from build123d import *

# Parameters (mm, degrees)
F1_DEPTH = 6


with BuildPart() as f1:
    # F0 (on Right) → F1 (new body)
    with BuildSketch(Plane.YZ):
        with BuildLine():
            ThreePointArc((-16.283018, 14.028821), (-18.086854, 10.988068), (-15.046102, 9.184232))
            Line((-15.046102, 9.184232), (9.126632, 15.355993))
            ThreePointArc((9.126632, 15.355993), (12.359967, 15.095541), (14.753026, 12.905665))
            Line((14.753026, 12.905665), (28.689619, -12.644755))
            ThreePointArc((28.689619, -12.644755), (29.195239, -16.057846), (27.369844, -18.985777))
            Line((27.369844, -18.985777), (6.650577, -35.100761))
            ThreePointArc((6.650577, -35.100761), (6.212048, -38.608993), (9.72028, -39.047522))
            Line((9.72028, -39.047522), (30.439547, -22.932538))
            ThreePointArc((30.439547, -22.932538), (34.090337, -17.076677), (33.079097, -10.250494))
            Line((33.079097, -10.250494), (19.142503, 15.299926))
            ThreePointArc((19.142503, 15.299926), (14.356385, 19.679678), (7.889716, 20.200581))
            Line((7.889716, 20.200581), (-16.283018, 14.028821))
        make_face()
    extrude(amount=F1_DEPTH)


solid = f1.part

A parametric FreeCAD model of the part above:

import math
import FreeCAD as App
import Part
import Sketcher
from FreeCAD import Vector

doc = App.newDocument("Part")
params = doc.addObject("Spreadsheet::Sheet", "Params")
for row, (alias, value) in enumerate([
    ("sketch1_radius", "5.000001 mm"),
    ("sketch1_radius2", "5.000001 mm"),
    ("sketch1_radius3", "10.000001 mm"),
    ("sketch1_radius4", "10 mm"),
    ("sketch1_radius5", "2.5 mm"),
    ("pad1_length", "6 mm"),
], start=1):
    params.set(f"A{row}", alias)
    params.set(f"B{row}", "=" + value)
    params.setAlias(f"B{row}", alias)

body = doc.addObject("PartDesign::Body", "Body")

# Sketch on YZ plane
sketch1 = body.newObject("Sketcher::SketchObject", "Sketch")
sketch1.AttachmentSupport = (doc.getObject("YZ_Plane"), [""])
sketch1.MapMode = "FlatFace"
sketch1.addGeometry(Part.ArcOfCircle(Part.Circle(Vector(-15.66456, 11.606527, 0), Vector(0, 0, 1), 2.5), math.radians(104.322724), math.radians(284.322708)), False)
sketch1.addGeometry(Part.LineSegment(Vector(-15.046102, 9.184232, 0), Vector(9.126632, 15.355993, 0)), False)
sketch1.addGeometry(Part.ArcOfCircle(Part.Circle(Vector(10.363547, 10.511403, 0), Vector(0, 0, 1), 5.000001), math.radians(28.61047), math.radians(104.322707)), False)
sketch1.addGeometry(Part.LineSegment(Vector(14.753026, 12.905665, 0), Vector(28.689619, -12.644755, 0)), False)
sketch1.addGeometry(Part.ArcOfCircle(Part.Circle(Vector(24.30014, -15.039016, 0), Vector(0, 0, 1), 5.000001), math.radians(-52.125013), math.radians(28.610454)), False)
sketch1.addGeometry(Part.LineSegment(Vector(27.369844, -18.985777, 0), Vector(6.650577, -35.100761, 0)), False)
sketch1.addGeometry(Part.ArcOfCircle(Part.Circle(Vector(8.185429, -37.074142, 0), Vector(0, 0, 1), 2.5), math.radians(127.874984), math.radians(307.874984)), False)
sketch1.addGeometry(Part.LineSegment(Vector(9.72028, -39.047522, 0), Vector(30.439547, -22.932538, 0)), False)
sketch1.addGeometry(Part.ArcOfCircle(Part.Circle(Vector(24.30014, -15.039015, 0), Vector(0, 0, 1), 10.000001), math.radians(-52.125016), math.radians(28.610457)), False)
sketch1.addGeometry(Part.LineSegment(Vector(33.079097, -10.250494, 0), Vector(19.142503, 15.299926, 0)), False)
sketch1.addGeometry(Part.ArcOfCircle(Part.Circle(Vector(10.363548, 10.511404, 0), Vector(0, 0, 1), 10), math.radians(28.610464), math.radians(104.322718)), False)
sketch1.addGeometry(Part.LineSegment(Vector(7.889716, 20.200581, 0), Vector(-16.283018, 14.028821, 0)), False)
sketch1.addConstraint(Sketcher.Constraint("Coincident", 0, 2, 1, 1))
sketch1.addConstraint(Sketcher.Constraint("Coincident", 1, 2, 2, 2))
sketch1.addConstraint(Sketcher.Constraint("Coincident", 2, 1, 3, 1))
sketch1.addConstraint(Sketcher.Constraint("Coincident", 3, 2, 4, 2))
sketch1.addConstraint(Sketcher.Constraint("Coincident", 4, 1, 5, 1))
sketch1.addConstraint(Sketcher.Constraint("Coincident", 5, 2, 6, 1))
sketch1.addConstraint(Sketcher.Constraint("Coincident", 6, 2, 7, 1))
sketch1.addConstraint(Sketcher.Constraint("Coincident", 7, 2, 8, 1))
sketch1.addConstraint(Sketcher.Constraint("Coincident", 8, 2, 9, 1))
sketch1.addConstraint(Sketcher.Constraint("Coincident", 9, 2, 10, 1))
sketch1.addConstraint(Sketcher.Constraint("Coincident", 10, 2, 11, 1))
sketch1.addConstraint(Sketcher.Constraint("Coincident", 11, 2, 0, 1))
sketch1.addConstraint(Sketcher.Constraint("Coincident", 8, 3, 4, 3))
sketch1.addConstraint(Sketcher.Constraint("Coincident", 10, 3, 2, 3))
sketch1.addConstraint(Sketcher.Constraint("Radius", 2, 5.000001))
sketch1.addConstraint(Sketcher.Constraint("Radius", 4, 5.000001))
sketch1.addConstraint(Sketcher.Constraint("Radius", 8, 10.000001))
sketch1.addConstraint(Sketcher.Constraint("Radius", 10, 10.0))
sketch1.addConstraint(Sketcher.Constraint("Radius", 0, 2.5))
sketch1.addConstraint(Sketcher.Constraint("Radius", 6, 2.5))
sketch1.addConstraint(Sketcher.Constraint("DistanceX", 0, 3, 4, 3, 39.9647))
sketch1.addConstraint(Sketcher.Constraint("Distance", 1, 24.94818))
sketch1.addConstraint(Sketcher.Constraint("Distance", 9, 29.104168))
sketch1.addConstraint(Sketcher.Constraint("Distance", 11, 24.94818))
sketch1.addConstraint(Sketcher.Constraint("DistanceX", 0, 3, -1, 1, 15.66456))
sketch1.addConstraint(Sketcher.Constraint("DistanceX", -1, 1, 6, 3, 8.185429))
sketch1.addConstraint(Sketcher.Constraint("DistanceY", 6, 3, -1, 1, 37.074142))
sketch1.addConstraint(Sketcher.Constraint("DistanceX", -1, 1, 3, 2, 28.689619))
sketch1.addConstraint(Sketcher.Constraint("DistanceY", 5, 2, -1, 1, 35.100761))
sketch1.addConstraint(Sketcher.Constraint("DistanceX", -1, 1, 6, 2, 9.72028))
sketch1.addConstraint(Sketcher.Constraint("DistanceY", 7, 2, -1, 1, 22.932538))
sketch1.addConstraint(Sketcher.Constraint("DistanceY", -1, 1, 10, 2, 20.200581))
sketch1.addConstraint(Sketcher.Constraint("DistanceY", -1, 1, 11, 2, 14.028821))
sketch1.addConstraint(Sketcher.Constraint("DistanceY", 4, 3, 2, 3, 25.550419))
sketch1.addConstraint(Sketcher.Constraint("DistanceX", 6, 3, 2, 3, 2.178119))
sketch1.addConstraint(Sketcher.Constraint("DistanceY", 6, 3, 0, 3, 48.680668))
sketch1.addConstraint(Sketcher.Constraint("DistanceX", 0, 2, 2, 3, 25.409649))
sketch1.addConstraint(Sketcher.Constraint("DistanceX", 10, 3, 2, 1, 4.389478))
sketch1.addConstraint(Sketcher.Constraint("DistanceY", 4, 1, 4, 3, 3.946761))
sketch1.addConstraint(Sketcher.Constraint("DistanceX", 3, 2, 8, 2, 4.389478))
sketch1.setExpression("Constraints[14]", "Params.sketch1_radius")
sketch1.setExpression("Constraints[15]", "Params.sketch1_radius2")
sketch1.setExpression("Constraints[16]", "Params.sketch1_radius3")
sketch1.setExpression("Constraints[17]", "Params.sketch1_radius4")
sketch1.setExpression("Constraints[18]", "Params.sketch1_radius5")
pad1 = body.newObject("PartDesign::Pad", "Pad")
pad1.Profile = sketch1
pad1.setExpression("Length", "Params.pad1_length")

doc.recompute()
